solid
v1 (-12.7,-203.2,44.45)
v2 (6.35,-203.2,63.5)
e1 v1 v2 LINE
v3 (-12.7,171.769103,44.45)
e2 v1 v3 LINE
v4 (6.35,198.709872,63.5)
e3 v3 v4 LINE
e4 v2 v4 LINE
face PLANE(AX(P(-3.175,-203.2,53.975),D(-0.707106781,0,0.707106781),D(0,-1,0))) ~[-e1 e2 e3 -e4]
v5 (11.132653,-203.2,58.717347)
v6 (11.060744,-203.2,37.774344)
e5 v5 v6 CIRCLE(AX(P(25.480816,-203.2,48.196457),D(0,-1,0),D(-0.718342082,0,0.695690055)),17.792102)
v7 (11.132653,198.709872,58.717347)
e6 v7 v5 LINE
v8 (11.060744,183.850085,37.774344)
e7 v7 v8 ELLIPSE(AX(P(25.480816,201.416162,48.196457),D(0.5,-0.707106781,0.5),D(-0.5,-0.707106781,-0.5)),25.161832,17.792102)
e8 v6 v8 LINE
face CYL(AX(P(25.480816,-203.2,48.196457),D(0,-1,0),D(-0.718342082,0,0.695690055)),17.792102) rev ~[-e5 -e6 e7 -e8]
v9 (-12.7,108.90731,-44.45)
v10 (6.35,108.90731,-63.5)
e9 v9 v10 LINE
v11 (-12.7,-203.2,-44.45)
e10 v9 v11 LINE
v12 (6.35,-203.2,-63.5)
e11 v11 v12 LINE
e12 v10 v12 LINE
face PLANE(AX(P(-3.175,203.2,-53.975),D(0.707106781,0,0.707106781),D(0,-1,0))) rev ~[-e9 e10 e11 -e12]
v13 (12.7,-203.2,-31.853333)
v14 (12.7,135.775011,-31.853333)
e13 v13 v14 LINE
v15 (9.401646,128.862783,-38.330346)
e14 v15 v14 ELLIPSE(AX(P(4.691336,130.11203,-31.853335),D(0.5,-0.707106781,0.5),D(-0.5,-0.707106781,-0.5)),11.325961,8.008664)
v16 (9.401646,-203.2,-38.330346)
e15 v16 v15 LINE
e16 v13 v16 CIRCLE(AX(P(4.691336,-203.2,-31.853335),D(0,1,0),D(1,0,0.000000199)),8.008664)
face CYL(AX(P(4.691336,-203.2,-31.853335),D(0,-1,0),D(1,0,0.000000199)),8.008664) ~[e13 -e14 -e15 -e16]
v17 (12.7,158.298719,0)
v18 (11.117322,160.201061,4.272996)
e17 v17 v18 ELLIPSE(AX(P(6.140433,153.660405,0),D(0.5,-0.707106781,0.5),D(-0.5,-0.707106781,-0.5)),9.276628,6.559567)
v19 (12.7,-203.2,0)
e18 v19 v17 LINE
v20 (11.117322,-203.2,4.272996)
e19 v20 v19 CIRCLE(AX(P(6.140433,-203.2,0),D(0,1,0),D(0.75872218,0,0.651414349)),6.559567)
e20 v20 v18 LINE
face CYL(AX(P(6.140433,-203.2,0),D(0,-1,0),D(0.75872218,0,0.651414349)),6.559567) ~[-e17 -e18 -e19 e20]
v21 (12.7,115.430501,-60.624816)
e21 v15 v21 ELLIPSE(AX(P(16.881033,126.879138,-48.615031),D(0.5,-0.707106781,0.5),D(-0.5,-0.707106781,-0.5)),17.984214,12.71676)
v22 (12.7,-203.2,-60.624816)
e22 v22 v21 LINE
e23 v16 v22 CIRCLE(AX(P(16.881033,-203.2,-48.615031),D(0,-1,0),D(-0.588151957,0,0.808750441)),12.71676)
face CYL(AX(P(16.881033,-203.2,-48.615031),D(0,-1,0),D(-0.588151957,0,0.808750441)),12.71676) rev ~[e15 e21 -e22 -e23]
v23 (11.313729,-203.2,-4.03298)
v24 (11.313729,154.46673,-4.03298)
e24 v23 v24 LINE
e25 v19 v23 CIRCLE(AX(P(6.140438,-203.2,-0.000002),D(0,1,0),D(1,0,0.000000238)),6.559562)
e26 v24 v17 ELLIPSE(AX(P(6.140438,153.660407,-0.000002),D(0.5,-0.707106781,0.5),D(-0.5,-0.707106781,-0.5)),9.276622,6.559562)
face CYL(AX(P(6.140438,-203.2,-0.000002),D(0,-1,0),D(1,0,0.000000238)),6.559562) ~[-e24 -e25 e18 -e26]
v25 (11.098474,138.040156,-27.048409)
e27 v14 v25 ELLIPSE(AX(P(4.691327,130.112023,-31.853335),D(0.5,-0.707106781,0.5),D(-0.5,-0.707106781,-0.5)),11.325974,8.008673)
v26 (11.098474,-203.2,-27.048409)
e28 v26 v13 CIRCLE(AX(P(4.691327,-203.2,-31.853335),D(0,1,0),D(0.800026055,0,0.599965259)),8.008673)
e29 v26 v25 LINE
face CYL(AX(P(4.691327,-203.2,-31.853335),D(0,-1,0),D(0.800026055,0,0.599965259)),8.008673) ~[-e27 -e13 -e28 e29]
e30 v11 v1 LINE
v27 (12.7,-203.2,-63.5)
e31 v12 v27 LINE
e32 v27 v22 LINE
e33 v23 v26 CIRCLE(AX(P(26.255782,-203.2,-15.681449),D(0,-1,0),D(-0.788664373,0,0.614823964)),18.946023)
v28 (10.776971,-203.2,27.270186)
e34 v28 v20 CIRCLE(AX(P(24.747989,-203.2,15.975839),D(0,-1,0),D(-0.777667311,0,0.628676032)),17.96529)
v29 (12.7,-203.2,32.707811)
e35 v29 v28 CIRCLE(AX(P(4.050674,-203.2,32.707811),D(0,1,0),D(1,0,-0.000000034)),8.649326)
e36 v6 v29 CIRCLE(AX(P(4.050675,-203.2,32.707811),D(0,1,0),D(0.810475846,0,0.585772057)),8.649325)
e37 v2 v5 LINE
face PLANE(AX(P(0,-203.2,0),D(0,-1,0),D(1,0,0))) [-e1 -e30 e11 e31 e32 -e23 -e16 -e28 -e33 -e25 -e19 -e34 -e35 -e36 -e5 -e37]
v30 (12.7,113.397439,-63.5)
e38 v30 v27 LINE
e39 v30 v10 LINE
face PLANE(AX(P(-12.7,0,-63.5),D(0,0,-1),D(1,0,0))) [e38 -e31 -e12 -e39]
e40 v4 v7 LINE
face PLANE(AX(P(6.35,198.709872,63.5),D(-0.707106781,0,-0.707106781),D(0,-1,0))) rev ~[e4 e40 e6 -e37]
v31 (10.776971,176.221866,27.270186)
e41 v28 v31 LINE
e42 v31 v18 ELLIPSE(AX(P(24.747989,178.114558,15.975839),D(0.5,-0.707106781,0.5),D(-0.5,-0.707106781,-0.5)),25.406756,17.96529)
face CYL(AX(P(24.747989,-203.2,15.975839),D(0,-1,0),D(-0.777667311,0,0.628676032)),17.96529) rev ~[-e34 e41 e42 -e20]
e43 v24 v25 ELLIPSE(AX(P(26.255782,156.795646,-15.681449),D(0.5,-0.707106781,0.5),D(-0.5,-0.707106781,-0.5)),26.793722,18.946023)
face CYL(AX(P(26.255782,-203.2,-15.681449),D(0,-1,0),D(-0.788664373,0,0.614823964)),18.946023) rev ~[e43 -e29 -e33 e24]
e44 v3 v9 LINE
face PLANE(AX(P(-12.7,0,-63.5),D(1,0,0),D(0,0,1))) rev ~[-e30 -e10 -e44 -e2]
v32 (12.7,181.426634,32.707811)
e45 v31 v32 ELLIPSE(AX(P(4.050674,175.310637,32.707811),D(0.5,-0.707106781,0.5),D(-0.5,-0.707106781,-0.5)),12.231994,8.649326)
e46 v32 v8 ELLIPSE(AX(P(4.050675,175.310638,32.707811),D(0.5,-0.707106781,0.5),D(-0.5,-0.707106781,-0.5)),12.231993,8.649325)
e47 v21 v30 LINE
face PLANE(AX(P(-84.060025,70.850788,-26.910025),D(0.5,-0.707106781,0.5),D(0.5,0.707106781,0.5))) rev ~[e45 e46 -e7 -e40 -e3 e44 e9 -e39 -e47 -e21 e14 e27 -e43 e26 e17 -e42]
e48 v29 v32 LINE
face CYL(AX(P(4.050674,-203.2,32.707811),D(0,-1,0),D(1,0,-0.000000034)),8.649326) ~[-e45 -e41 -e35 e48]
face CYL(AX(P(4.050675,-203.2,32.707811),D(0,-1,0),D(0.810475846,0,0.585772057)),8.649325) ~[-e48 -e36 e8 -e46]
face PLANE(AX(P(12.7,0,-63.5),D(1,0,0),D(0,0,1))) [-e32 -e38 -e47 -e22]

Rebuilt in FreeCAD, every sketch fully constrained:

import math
import FreeCAD as App
import Part
import Sketcher
from FreeCAD import Vector
Q = App.Units.Quantity


def edges_at(feature, points):
    """Names of the edges that pass closest to the given points."""
    edges = feature.Shape.Edges
    near = lambda p: min(range(len(edges)), key=lambda i: edges[i].distToShape(Part.Vertex(*p))[0])
    return sorted({f"Edge{near(p) + 1}" for p in points})


def add_polygon(sketch, points):
    """Adds a closed chain of lines whose ends are joined by coincident constraints."""
    first, n = sketch.GeometryCount, len(points)
    for a, b in zip(points, points[1:] + points[:1]):
        sketch.addGeometry(Part.LineSegment(App.Vector(*a, 0), App.Vector(*b, 0)), False)
    for i in range(n):
        sketch.addConstraint(Sketcher.Constraint("Coincident", first + i, 2, first + (i + 1) % n, 1))

doc = App.newDocument("Part")
body = doc.addObject("PartDesign::Body", "Body")

sketch1 = doc.addObject("Sketcher::SketchObject", "Sketch")
body.addObject(sketch1)
sketch1.AttachmentSupport = (doc.XZ_Plane, [""])
sketch1.MapMode = "FlatFace"
add_polygon(sketch1, [(-12.7, 63.5), (-12.7, -63.5), (12.7, -63.5), (12.7, 63.5)])
sketch1.addConstraint(Sketcher.Constraint("Vertical", 0))
sketch1.addConstraint(Sketcher.Constraint("Horizontal", 1))
sketch1.addConstraint(Sketcher.Constraint("Vertical", 2))
sketch1.addConstraint(Sketcher.Constraint("Horizontal", 3))
sketch1.addConstraint(Sketcher.Constraint("Symmetric", 0, 2, 2, 2, -1, 1))
sketch1.addConstraint(Sketcher.Constraint("DistanceX", 1, 1, 1, 2, Q("1 in")))
sketch1.addConstraint(Sketcher.Constraint("DistanceY", 0, 2, 0, 1, Q("5 in")))
pad1 = doc.addObject("PartDesign::Pad", "Pad")
body.addObject(pad1)
pad1.Profile = sketch1
pad1.Length = Q("16 in")
pad1.Midplane = True
doc.recompute()

chamfer = doc.addObject("PartDesign::Chamfer", "Chamfer")
body.addObject(chamfer)
chamfer.Base = (pad1, edges_at(pad1, [(-12.7, 0, 63.5), (-12.7, 0, -63.5)]))
chamfer.Size = Q("0.75 in")

sketch2 = doc.addObject("Sketcher::SketchObject", "Sketch001")
body.addObject(sketch2)
sketch2.AttachmentSupport = (doc.XZ_Plane, [""])
sketch2.MapMode = "FlatFace"
sketch2.AttachmentOffset = App.Placement(Vector(0, 0, 8 * 25.4), App.Rotation())
sketch2.addGeometry(Part.ArcOfCircle(Part.Circle(Vector(4.050675, 32.707811, 0), Vector(0, 0, 1), 8.649325), math.radians(-0.000001), math.radians(35.857551)), False)
sketch2.addGeometry(Part.LineSegment(Vector(12.7, 32.707811, 0), Vector(12.7, 60.574245, 0)), False)
sketch2.addGeometry(Part.ArcOfCircle(Part.Circle(Vector(25.480816, 48.196457, 0), Vector(0, 0, 1), 17.792102), math.radians(135.917769), math.radians(215.857536)), False)
sketch2.addGeometry(Part.ArcOfCircle(Part.Circle(Vector(4.050674, 32.707811, 0), Vector(0, 0, 1), 8.649326), math.radians(-38.952522), math.radians(-0.000002)), False)
sketch2.addGeometry(Part.ArcOfCircle(Part.Circle(Vector(24.747989, 15.975839, 0), Vector(0, 0, 1), 17.96529), math.radians(141.04749), math.radians(220.648304)), False)
sketch2.addGeometry(Part.ArcOfCircle(Part.Circle(Vector(6.140433, 0, 0), Vector(0, 0, 1), 6.559567), math.radians(0), math.radians(40.648323)), False)
sketch2.addGeometry(Part.LineSegment(Vector(12.7, 0, 0), Vector(12.7, 32.707811, 0)), False)
sketch2.addGeometry(Part.LineSegment(Vector(12.7, -31.853333, 0), Vector(12.7, 0, 0)), False)
sketch2.addGeometry(Part.ArcOfCircle(Part.Circle(Vector(6.140438, -0.000002, 0), Vector(0, 0, 1), 6.559562), math.radians(-37.939155), math.radians(0.000014)), False)
sketch2.addGeometry(Part.ArcOfCircle(Part.Circle(Vector(26.255782, -15.681449, 0), Vector(0, 0, 1), 18.946023), math.radians(142.06087), math.radians(216.867428)), False)
sketch2.addGeometry(Part.ArcOfCircle(Part.Circle(Vector(4.691327, -31.853335, 0), Vector(0, 0, 1), 8.008673), math.radians(0.000013), math.radians(36.86741)), False)
sketch2.addGeometry(Part.LineSegment(Vector(12.7, -60.624816, 0), Vector(12.7, -31.853333, 0)), False)
sketch2.addGeometry(Part.ArcOfCircle(Part.Circle(Vector(4.691336, -31.853335, 0), Vector(0, 0, 1), 8.008664), math.radians(-53.974039), math.radians(0.000011)), False)
sketch2.addGeometry(Part.ArcOfCircle(Part.Circle(Vector(16.881033, -48.615031, 0), Vector(0, 0, 1), 12.71676), math.radians(126.025975), math.radians(250.805177)), False)
sketch2.addConstraint(Sketcher.Constraint("Tangent", 0, 1, 1, 1))
sketch2.addConstraint(Sketcher.Constraint("Coincident", 1, 2, 2, 1))
sketch2.addConstraint(Sketcher.Constraint("Tangent", 2, 2, 0, 2))
sketch2.addConstraint(Sketcher.Constraint("Tangent", 3, 1, 4, 1))
sketch2.addConstraint(Sketcher.Constraint("Tangent", 4, 2, 5, 2))
sketch2.addConstraint(Sketcher.Constraint("Tangent", 5, 1, 6, 1))
sketch2.addConstraint(Sketcher.Constraint("Tangent", 6, 2, 3, 2))
sketch2.addConstraint(Sketcher.Constraint("Tangent", 7, 2, 8, 2))
sketch2.addConstraint(Sketcher.Constraint("Tangent", 8, 1, 9, 1))
sketch2.addConstraint(Sketcher.Constraint("Tangent", 9, 2, 10, 2))
sketch2.addConstraint(Sketcher.Constraint("Tangent", 10, 1, 7, 1))
sketch2.addConstraint(Sketcher.Constraint("Tangent", 11, 2, 12, 2))
sketch2.addConstraint(Sketcher.Constraint("Tangent", 12, 1, 13, 1))
sketch2.addConstraint(Sketcher.Constraint("Coincident", 13, 2, 11, 1))
sketch2.addConstraint(Sketcher.Constraint("Vertical", 1))
sketch2.addConstraint(Sketcher.Constraint("Vertical", 6))
sketch2.addConstraint(Sketcher.Constraint("Vertical", 7))
sketch2.addConstraint(Sketcher.Constraint("Vertical", 11))
sketch2.addConstraint(Sketcher.Constraint("Coincident", 3, 3, 0, 3))
sketch2.addConstraint(Sketcher.Constraint("Coincident", 8, 3, 5, 3))
sketch2.addConstraint(Sketcher.Constraint("Coincident", 12, 3, 10, 3))
sketch2.addConstraint(Sketcher.Constraint("Equal", 0, 3))
sketch2.addConstraint(Sketcher.Constraint("PointOnObject", 5, 3, -1))
sketch2.addConstraint(Sketcher.Constraint("Vertical", 6, 2, 7, 2))
sketch2.addConstraint(Sketcher.Constraint("Vertical", 7, 2, 11, 2))
sketch2.addConstraint(Sketcher.Constraint("DistanceX", -1, 1, 0, 1, Q("0.5 in")))
sketch2.addConstraint(Sketcher.Constraint("Radius", 4, Q("17.96529 mm")))
sketch2.addConstraint(Sketcher.Constraint("Radius", 13, Q("12.71676 mm")))
sketch2.addConstraint(Sketcher.Constraint("Radius", 0, Q("8.649325 mm")))
sketch2.addConstraint(Sketcher.Constraint("Radius", 2, Q("17.792102 mm")))
sketch2.addConstraint(Sketcher.Constraint("Radius", 5, Q("6.559567 mm")))
sketch2.addConstraint(Sketcher.Constraint("Radius", 9, Q("18.946023 mm")))
sketch2.addConstraint(Sketcher.Constraint("Radius", 10, Q("8.008673 mm")))
sketch2.addConstraint(Sketcher.Constraint("DistanceY", 6, 1, 6, 2, Q("32.707811 mm")))
sketch2.addConstraint(Sketcher.Constraint("DistanceX", 5, 3, 13, 3, Q("10.7406 mm")))
sketch2.addConstraint(Sketcher.Constraint("DistanceY", 2, 2, 1, 2, Q("22.799901 mm")))
sketch2.addConstraint(Sketcher.Constraint("DistanceY", 7, 1, 7, 2, Q("31.853333 mm")))
pocket1 = doc.addObject("PartDesign::Pocket", "Pocket")
body.addObject(pocket1)
pocket1.Profile = sketch2
pocket1.Type = "ThroughAll"

sketch3 = doc.addObject("Sketcher::SketchObject", "Sketch002")
body.addObject(sketch3)
sketch3.Placement = App.Placement(Vector(-28.575, 0, 28.575), App.Rotation(Vector(0, -1, 0), Vector(0.707106781, 0, 0.707106781), Vector(-0.707106781, 0, 0.707106781), "ZXY"))
add_polygon(sketch3, [(203.2, 49.391409), (203.2, 53.881537), (-203.2, 53.881537), (-203.2, -78.467675), (-70.850788, -78.467675), (-198.709872, 49.391409)])
sketch3.addConstraint(Sketcher.Constraint("Vertical", 0))
sketch3.addConstraint(Sketcher.Constraint("Horizontal", 1))
sketch3.addConstraint(Sketcher.Constraint("Vertical", 2))
sketch3.addConstraint(Sketcher.Constraint("Horizontal", 3))
sketch3.addConstraint(Sketcher.Constraint("Horizontal", 5))
sketch3.addConstraint(Sketcher.Constraint("Equal", 3, 2))
sketch3.addConstraint(Sketcher.Constraint("DistanceX", 1, 2, 1, 1, Q("16 in")))
sketch3.addConstraint(Sketcher.Constraint("DistanceX", -1, 1, 0, 2, Q("8 in")))
sketch3.addConstraint(Sketcher.Constraint("Angle", 4, Q("135 deg")))
sketch3.addConstraint(Sketcher.Constraint("DistanceX", 3, 1, 3, 2, Q("132.349212 mm")))
sketch3.addConstraint(Sketcher.Constraint("DistanceX", 5, 1, 5, 2, Q("401.909872 mm")))
sketch3.addConstraint(Sketcher.Constraint("DistanceY", -1, 1, 4, 2, Q("49.391409 mm")))
pocket2 = doc.addObject("PartDesign::Pocket", "Pocket001")
body.addObject(pocket2)
pocket2.Profile = sketch3
pocket2.Type = "ThroughAll"

doc.recompute()
